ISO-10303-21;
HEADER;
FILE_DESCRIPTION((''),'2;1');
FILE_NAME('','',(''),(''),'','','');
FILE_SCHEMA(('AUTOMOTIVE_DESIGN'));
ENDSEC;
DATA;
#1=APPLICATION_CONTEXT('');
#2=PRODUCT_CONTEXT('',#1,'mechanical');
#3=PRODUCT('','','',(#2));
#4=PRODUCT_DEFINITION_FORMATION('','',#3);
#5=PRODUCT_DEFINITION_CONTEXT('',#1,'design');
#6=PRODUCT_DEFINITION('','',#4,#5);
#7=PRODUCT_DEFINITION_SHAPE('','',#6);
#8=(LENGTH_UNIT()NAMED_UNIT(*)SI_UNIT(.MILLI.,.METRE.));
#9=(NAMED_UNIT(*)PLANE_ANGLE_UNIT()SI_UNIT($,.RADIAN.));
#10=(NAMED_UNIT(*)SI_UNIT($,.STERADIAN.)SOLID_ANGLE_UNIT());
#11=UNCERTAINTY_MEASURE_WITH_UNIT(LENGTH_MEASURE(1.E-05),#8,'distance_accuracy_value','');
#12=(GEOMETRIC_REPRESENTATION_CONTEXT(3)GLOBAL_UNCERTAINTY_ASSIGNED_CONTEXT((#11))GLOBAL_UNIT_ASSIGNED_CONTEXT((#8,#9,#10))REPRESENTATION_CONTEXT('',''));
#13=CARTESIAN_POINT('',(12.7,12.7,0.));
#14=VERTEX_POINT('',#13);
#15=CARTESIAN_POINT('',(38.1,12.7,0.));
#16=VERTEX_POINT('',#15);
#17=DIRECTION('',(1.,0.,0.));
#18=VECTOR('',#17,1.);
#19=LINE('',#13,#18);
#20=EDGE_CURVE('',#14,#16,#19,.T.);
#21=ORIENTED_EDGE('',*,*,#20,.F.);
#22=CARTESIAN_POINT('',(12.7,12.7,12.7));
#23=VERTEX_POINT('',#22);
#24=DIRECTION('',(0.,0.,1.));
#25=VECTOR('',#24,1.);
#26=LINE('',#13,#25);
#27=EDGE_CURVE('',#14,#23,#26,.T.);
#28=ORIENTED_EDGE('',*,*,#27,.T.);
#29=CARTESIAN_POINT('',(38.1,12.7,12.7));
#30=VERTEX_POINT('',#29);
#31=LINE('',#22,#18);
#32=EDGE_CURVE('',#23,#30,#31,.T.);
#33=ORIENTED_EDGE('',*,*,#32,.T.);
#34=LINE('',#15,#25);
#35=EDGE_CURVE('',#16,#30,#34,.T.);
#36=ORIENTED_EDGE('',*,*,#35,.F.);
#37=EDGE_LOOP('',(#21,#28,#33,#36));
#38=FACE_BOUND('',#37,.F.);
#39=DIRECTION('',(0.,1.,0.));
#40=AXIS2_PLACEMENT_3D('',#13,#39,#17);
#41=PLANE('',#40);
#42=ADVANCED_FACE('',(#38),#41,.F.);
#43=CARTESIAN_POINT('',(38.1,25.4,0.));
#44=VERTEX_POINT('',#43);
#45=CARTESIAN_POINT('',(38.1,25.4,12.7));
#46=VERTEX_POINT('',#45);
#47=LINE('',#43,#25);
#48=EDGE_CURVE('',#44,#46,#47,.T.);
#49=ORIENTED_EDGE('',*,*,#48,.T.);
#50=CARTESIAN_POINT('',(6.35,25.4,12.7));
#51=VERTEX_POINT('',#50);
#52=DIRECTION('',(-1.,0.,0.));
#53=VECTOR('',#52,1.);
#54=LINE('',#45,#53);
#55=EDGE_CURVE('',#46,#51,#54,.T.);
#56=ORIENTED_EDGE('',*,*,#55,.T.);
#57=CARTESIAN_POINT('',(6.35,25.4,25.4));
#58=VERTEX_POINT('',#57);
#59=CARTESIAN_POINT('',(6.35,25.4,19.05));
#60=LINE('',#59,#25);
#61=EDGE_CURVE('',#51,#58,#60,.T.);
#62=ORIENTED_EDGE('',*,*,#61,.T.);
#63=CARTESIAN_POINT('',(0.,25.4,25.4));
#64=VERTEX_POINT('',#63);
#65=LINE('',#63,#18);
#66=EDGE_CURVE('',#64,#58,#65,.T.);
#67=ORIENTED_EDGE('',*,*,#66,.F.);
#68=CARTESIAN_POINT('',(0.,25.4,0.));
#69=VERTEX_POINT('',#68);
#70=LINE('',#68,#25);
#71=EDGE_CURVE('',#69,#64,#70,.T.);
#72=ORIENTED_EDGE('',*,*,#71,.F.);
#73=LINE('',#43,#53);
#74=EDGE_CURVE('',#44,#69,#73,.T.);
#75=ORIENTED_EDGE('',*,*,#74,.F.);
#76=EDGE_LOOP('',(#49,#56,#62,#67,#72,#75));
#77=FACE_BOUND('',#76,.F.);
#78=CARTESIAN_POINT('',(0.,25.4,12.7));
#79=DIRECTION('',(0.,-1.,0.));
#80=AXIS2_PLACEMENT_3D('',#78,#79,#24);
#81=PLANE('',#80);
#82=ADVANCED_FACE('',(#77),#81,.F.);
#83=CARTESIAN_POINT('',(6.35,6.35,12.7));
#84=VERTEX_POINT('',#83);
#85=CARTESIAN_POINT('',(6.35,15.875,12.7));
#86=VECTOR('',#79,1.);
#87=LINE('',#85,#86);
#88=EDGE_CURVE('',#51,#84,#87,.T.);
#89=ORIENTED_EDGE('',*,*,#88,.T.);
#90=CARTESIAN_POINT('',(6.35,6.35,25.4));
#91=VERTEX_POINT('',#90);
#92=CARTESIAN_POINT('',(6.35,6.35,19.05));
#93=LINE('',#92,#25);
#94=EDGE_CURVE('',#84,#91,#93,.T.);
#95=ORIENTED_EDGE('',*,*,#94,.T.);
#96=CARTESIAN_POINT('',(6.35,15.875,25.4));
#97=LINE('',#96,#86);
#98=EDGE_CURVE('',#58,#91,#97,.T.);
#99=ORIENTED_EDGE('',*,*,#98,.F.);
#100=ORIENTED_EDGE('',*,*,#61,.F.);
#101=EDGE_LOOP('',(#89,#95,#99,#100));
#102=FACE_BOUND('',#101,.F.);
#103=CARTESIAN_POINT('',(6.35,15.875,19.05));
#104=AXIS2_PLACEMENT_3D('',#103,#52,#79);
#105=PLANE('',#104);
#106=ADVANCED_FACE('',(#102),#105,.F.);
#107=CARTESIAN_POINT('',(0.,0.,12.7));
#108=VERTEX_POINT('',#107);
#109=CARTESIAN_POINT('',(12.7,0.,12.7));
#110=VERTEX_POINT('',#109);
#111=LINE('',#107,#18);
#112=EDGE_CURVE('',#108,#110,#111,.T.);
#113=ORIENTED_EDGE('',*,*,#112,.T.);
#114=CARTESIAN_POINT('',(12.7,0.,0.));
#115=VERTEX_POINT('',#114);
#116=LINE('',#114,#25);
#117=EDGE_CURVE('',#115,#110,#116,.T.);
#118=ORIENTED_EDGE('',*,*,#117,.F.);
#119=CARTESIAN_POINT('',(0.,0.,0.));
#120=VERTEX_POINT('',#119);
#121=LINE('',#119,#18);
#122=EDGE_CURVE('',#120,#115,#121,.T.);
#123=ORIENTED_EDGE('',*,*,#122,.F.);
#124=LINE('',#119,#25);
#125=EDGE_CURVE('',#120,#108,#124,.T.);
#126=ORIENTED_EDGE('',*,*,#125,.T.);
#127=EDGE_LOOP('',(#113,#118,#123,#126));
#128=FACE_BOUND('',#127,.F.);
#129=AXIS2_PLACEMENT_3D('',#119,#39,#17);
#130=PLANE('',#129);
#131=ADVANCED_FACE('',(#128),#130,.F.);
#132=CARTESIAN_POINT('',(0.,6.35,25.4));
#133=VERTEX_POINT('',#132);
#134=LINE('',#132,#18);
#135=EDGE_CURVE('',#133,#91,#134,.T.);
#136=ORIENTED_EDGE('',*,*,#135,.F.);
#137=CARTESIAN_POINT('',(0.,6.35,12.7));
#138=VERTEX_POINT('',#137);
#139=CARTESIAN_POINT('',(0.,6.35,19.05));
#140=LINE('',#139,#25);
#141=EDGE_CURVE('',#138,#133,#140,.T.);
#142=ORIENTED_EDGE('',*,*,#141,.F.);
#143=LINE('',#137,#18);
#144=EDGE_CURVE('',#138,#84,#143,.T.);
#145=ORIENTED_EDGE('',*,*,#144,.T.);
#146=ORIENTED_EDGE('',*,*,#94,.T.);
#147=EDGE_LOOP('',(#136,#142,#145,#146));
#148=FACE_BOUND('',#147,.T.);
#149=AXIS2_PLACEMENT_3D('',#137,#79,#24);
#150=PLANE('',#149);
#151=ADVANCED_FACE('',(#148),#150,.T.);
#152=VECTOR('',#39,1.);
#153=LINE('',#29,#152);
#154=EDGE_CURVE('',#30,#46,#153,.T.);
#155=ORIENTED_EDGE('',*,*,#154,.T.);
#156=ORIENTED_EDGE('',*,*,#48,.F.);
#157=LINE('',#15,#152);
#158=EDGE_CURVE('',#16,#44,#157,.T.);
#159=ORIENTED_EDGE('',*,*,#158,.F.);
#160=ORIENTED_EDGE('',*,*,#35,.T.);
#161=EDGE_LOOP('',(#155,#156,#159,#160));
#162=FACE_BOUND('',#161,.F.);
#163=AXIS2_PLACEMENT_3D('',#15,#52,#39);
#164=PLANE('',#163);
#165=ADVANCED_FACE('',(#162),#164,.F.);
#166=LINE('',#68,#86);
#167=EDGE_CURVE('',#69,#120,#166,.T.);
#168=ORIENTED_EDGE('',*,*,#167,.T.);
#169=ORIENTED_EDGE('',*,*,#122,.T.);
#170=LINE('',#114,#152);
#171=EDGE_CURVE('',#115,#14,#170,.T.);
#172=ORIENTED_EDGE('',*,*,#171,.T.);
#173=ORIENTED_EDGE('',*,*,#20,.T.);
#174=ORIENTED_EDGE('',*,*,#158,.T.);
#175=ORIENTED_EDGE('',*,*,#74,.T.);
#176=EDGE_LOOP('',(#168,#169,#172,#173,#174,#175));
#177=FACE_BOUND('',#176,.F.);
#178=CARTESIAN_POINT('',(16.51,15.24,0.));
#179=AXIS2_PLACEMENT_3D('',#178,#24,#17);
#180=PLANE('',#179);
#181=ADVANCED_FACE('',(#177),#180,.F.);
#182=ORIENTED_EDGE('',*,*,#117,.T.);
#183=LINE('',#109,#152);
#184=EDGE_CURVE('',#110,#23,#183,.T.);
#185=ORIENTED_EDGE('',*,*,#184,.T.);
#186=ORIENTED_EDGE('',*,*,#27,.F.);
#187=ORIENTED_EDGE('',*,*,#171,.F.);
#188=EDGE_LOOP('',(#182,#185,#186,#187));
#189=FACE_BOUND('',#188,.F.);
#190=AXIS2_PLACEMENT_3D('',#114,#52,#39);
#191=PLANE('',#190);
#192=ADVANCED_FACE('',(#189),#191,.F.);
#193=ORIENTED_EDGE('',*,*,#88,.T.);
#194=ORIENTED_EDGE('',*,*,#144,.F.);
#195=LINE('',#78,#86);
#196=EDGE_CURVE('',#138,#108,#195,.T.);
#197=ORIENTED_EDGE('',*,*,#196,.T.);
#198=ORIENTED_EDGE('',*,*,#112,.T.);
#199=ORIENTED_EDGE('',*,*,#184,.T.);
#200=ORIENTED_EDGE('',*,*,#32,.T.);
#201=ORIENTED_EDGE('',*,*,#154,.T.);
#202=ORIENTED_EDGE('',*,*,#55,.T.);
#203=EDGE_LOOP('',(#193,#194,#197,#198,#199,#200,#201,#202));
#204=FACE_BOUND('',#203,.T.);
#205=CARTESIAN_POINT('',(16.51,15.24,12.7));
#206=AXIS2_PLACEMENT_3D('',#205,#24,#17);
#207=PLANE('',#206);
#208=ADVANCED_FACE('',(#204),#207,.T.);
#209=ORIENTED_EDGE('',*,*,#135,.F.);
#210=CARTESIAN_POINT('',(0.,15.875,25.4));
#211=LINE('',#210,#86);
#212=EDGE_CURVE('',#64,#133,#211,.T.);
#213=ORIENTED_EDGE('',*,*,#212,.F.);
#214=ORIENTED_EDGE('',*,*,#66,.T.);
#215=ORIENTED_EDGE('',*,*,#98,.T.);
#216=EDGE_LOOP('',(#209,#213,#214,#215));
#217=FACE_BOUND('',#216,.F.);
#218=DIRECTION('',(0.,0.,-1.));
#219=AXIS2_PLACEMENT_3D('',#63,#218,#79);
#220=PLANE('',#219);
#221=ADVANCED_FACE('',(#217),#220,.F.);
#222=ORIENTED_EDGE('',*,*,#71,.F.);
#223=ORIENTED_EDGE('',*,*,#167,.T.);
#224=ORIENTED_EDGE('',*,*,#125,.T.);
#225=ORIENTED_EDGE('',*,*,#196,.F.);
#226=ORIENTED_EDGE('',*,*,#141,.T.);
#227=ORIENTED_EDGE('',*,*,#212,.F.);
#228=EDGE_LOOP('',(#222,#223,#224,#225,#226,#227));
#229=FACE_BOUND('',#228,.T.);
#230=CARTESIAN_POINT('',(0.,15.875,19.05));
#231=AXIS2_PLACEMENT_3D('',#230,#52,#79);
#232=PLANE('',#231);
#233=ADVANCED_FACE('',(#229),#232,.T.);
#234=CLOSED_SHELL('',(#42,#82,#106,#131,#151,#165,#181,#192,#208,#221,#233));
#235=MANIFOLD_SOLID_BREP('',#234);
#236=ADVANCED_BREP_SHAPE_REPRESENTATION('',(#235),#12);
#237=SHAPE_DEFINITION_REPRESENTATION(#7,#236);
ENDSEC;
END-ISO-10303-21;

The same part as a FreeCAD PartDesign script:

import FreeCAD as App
import Part
import Sketcher

V = App.Vector
Q = App.Units.Quantity

doc = App.newDocument("Part")
body = doc.addObject("PartDesign::Body", "Body")

# Sketch on XY plane
sketch1 = doc.addObject("Sketcher::SketchObject", "Sketch")
body.addObject(sketch1)
sketch1.AttachmentSupport = (doc.XY_Plane, [""])
sketch1.MapMode = "FlatFace"
sketch1.addGeometry([
    Part.LineSegment(V(38, 25, 0), V(0, 25, 0)),  # 0
    Part.LineSegment(V(0, 25, 0), V(0, 0, 0)),  # 1
    Part.LineSegment(V(0, 0, 0), V(13, 0, 0)),  # 2
    Part.LineSegment(V(13, 0, 0), V(13, 13, 0)),  # 3
    Part.LineSegment(V(13, 13, 0), V(38, 13, 0)),  # 4
    Part.LineSegment(V(38, 13, 0), V(38, 25, 0)),  # 5
], False)
sketch1.addConstraint([
    Sketcher.Constraint("Coincident", 0, 2, 1, 1),
    Sketcher.Constraint("Coincident", 1, 2, 2, 1),
    Sketcher.Constraint("Coincident", 2, 2, 3, 1),
    Sketcher.Constraint("Coincident", 3, 2, 4, 1),
    Sketcher.Constraint("Coincident", 4, 2, 5, 1),
    Sketcher.Constraint("Coincident", 5, 2, 0, 1),
    Sketcher.Constraint("Horizontal", 0),
    Sketcher.Constraint("Vertical", 1),
    Sketcher.Constraint("Horizontal", 2),
    Sketcher.Constraint("Vertical", 3),
    Sketcher.Constraint("Horizontal", 4),
    Sketcher.Constraint("Vertical", 5),
    Sketcher.Constraint("Coincident", 1, 2, -1, 1),
    Sketcher.Constraint("Equal", 4, 1),
    Sketcher.Constraint("Equal", 2, 3),
    Sketcher.Constraint("Equal", 3, 5),
    Sketcher.Constraint("DistanceX", 4, 1, 4, 2, Q("1 in")),
])
pad1 = doc.addObject("PartDesign::Pad", "Pad")
body.addObject(pad1)
pad1.Profile = sketch1
pad1.Length = Q("0.5 in")

# Sketch on YZ plane
sketch2 = doc.addObject("Sketcher::SketchObject", "Sketch001")
body.addObject(sketch2)
sketch2.AttachmentSupport = (doc.YZ_Plane, [""])
sketch2.MapMode = "FlatFace"
sketch2.addGeometry([
    Part.LineSegment(V(25, 25, 0), V(25, 13, 0)),
    Part.LineSegment(V(25, 13, 0), V(6, 13, 0)),
    Part.LineSegment(V(6, 13, 0), V(6, 25, 0)),
    Part.LineSegment(V(6, 25, 0), V(25, 25, 0)),
], False)
sketch2.addConstraint([
    Sketcher.Constraint("Coincident", 0, 2, 1, 1),
    Sketcher.Constraint("Coincident", 1, 2, 2, 1),
    Sketcher.Constraint("Coincident", 2, 2, 3, 1),
    Sketcher.Constraint("Coincident", 3, 2, 0, 1),
    Sketcher.Constraint("Vertical", 0),
    Sketcher.Constraint("Horizontal", 1),
    Sketcher.Constraint("Vertical", 2),
    Sketcher.Constraint("Horizontal", 3),
    Sketcher.Constraint("DistanceY", 0, 2, 0, 1, Q("0.5 in")),
    Sketcher.Constraint("DistanceX", -1, 1, 0, 2, Q("1 in")),
    Sketcher.Constraint("DistanceY", -1, 1, 2, 2, Q("1 in")),
    Sketcher.Constraint("DistanceX", 1, 2, 1, 1, Q("0.75 in")),
])
pad2 = doc.addObject("PartDesign::Pad", "Pad001")
body.addObject(pad2)
pad2.Profile = sketch2
pad2.Length = Q("0.25 in")

doc.recompute()
